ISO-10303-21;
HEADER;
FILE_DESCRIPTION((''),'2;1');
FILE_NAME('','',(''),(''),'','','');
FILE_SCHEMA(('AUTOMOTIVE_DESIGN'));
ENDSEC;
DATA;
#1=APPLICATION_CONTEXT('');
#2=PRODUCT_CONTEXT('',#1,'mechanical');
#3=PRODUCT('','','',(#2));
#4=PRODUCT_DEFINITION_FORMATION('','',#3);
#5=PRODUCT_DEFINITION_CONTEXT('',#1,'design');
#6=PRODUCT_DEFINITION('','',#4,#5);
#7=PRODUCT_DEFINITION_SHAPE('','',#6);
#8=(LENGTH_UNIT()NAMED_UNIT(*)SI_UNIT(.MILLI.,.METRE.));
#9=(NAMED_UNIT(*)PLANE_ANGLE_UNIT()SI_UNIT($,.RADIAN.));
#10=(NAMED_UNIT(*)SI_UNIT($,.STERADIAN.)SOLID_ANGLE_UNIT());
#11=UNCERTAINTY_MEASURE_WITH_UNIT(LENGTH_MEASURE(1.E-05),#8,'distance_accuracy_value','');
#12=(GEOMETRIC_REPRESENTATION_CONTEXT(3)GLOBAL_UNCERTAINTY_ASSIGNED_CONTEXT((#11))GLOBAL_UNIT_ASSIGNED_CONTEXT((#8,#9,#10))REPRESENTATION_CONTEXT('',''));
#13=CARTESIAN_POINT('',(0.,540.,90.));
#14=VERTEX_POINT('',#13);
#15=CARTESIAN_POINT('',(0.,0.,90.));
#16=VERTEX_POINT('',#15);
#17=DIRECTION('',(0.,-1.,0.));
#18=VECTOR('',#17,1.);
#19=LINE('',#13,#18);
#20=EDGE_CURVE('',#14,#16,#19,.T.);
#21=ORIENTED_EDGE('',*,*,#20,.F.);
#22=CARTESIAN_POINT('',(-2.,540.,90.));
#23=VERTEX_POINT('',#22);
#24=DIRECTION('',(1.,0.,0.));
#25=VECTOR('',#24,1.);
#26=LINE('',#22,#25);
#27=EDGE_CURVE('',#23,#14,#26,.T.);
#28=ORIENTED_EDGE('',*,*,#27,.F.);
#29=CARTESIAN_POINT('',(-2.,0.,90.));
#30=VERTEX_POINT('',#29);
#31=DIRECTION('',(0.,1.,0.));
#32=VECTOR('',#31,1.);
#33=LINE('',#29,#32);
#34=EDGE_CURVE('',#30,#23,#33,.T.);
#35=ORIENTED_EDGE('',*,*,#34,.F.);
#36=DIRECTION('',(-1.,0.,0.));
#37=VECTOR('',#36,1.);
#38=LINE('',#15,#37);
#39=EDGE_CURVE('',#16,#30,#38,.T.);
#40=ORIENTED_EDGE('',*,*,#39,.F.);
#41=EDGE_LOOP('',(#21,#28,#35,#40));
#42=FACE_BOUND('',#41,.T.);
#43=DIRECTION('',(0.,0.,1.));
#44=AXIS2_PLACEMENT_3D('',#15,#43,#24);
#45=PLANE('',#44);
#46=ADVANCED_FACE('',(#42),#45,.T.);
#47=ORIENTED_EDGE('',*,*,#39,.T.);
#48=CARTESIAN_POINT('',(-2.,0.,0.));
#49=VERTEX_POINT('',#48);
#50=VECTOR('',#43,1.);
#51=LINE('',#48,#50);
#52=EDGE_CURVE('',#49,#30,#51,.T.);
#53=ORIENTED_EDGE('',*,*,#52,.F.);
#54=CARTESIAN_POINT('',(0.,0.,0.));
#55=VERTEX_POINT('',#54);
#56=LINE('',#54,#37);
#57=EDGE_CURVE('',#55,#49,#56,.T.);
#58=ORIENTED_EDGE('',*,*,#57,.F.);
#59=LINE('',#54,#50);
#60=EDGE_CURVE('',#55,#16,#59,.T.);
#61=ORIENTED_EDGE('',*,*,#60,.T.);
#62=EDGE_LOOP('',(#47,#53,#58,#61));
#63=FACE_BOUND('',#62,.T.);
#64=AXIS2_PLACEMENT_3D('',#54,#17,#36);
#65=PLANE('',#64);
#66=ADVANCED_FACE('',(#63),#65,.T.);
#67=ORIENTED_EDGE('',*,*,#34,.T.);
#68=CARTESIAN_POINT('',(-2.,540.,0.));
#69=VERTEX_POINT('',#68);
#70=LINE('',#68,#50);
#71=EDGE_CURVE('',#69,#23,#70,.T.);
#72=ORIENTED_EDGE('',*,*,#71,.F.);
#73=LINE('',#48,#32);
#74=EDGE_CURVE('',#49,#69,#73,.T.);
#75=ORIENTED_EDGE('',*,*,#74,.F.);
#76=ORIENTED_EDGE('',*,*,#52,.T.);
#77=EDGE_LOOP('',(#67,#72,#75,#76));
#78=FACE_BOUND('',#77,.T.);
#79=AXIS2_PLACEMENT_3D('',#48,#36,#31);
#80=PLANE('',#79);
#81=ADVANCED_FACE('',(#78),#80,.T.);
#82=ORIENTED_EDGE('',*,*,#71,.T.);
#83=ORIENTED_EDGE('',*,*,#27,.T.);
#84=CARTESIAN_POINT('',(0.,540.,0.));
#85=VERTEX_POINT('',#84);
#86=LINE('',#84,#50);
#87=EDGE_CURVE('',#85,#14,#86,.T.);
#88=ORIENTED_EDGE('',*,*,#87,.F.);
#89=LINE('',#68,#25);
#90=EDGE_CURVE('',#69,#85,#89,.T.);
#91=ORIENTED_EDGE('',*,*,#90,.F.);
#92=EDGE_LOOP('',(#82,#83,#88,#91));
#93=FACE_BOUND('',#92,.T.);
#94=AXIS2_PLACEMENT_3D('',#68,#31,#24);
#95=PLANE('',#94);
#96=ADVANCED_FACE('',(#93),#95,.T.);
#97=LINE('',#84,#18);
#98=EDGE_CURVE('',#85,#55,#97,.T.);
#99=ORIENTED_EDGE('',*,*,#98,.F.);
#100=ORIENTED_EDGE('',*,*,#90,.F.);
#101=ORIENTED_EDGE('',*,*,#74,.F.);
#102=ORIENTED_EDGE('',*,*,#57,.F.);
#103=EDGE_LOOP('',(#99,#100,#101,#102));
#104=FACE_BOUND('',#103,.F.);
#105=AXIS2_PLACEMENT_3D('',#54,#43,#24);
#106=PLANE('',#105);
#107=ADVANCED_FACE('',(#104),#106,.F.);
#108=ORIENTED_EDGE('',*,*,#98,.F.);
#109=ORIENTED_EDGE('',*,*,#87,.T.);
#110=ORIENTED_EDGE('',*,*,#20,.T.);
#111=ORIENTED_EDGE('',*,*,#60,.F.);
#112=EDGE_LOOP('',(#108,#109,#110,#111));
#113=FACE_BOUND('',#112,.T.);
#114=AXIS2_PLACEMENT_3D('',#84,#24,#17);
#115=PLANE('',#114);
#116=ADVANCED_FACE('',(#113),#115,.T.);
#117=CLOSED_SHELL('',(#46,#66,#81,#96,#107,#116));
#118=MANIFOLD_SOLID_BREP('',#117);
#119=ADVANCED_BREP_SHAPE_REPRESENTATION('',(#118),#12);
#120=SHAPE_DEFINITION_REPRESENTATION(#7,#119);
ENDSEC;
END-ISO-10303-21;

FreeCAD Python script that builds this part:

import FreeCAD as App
import Part
import Sketcher

doc = App.newDocument("Part")
params = doc.addObject("Spreadsheet::Sheet", "Params")
for row, (alias, value) in enumerate([
    ("sketch1_width", "2 mm"),
    ("sketch1_height", "540 mm"),
    ("pad1_length", "90 mm"),
], start=1):
    params.set(f"A{row}", alias)
    params.set(f"B{row}", "=" + value)
    params.setAlias(f"B{row}", alias)

body = doc.addObject("PartDesign::Body", "Body")

sketch1 = body.newObject("Sketcher::SketchObject", "Sketch")
sketch1.AttachmentSupport = (doc.getObject("XY_Plane"), [""])
sketch1.MapMode = "FlatFace"
sketch1.addGeometry(Part.LineSegment(App.Vector(-2, 0, 0), App.Vector(0, 0, 0)), False)
sketch1.addGeometry(Part.LineSegment(App.Vector(0, 0, 0), App.Vector(0, 540, 0)), False)
sketch1.addGeometry(Part.LineSegment(App.Vector(0, 540, 0), App.Vector(-2, 540, 0)), False)
sketch1.addGeometry(Part.LineSegment(App.Vector(-2, 540, 0), App.Vector(-2, 0, 0)), False)
sketch1.addConstraint(Sketcher.Constraint("Coincident", 0, 2, 1, 1))
sketch1.addConstraint(Sketcher.Constraint("Coincident", 1, 2, 2, 1))
sketch1.addConstraint(Sketcher.Constraint("Coincident", 2, 2, 3, 1))
sketch1.addConstraint(Sketcher.Constraint("Coincident", 3, 2, 0, 1))
sketch1.addConstraint(Sketcher.Constraint("Horizontal", 0))
sketch1.addConstraint(Sketcher.Constraint("Vertical", 1))
sketch1.addConstraint(Sketcher.Constraint("Horizontal", 2))
sketch1.addConstraint(Sketcher.Constraint("Vertical", 3))
sketch1.addConstraint(Sketcher.Constraint("Coincident", 0, 2, -1, 1))
sketch1.addConstraint(Sketcher.Constraint("DistanceX", 0, 1, 0, 2, 2.0))
sketch1.addConstraint(Sketcher.Constraint("DistanceY", 1, 1, 1, 2, 540.0))
sketch1.setExpression("Constraints[9]", "Params.sketch1_width")
sketch1.setExpression("Constraints[10]", "Params.sketch1_height")
pad1 = body.newObject("PartDesign::Pad", "Pad")
pad1.Profile = sketch1
pad1.setExpression("Length", "Params.pad1_length")

doc.recompute()
